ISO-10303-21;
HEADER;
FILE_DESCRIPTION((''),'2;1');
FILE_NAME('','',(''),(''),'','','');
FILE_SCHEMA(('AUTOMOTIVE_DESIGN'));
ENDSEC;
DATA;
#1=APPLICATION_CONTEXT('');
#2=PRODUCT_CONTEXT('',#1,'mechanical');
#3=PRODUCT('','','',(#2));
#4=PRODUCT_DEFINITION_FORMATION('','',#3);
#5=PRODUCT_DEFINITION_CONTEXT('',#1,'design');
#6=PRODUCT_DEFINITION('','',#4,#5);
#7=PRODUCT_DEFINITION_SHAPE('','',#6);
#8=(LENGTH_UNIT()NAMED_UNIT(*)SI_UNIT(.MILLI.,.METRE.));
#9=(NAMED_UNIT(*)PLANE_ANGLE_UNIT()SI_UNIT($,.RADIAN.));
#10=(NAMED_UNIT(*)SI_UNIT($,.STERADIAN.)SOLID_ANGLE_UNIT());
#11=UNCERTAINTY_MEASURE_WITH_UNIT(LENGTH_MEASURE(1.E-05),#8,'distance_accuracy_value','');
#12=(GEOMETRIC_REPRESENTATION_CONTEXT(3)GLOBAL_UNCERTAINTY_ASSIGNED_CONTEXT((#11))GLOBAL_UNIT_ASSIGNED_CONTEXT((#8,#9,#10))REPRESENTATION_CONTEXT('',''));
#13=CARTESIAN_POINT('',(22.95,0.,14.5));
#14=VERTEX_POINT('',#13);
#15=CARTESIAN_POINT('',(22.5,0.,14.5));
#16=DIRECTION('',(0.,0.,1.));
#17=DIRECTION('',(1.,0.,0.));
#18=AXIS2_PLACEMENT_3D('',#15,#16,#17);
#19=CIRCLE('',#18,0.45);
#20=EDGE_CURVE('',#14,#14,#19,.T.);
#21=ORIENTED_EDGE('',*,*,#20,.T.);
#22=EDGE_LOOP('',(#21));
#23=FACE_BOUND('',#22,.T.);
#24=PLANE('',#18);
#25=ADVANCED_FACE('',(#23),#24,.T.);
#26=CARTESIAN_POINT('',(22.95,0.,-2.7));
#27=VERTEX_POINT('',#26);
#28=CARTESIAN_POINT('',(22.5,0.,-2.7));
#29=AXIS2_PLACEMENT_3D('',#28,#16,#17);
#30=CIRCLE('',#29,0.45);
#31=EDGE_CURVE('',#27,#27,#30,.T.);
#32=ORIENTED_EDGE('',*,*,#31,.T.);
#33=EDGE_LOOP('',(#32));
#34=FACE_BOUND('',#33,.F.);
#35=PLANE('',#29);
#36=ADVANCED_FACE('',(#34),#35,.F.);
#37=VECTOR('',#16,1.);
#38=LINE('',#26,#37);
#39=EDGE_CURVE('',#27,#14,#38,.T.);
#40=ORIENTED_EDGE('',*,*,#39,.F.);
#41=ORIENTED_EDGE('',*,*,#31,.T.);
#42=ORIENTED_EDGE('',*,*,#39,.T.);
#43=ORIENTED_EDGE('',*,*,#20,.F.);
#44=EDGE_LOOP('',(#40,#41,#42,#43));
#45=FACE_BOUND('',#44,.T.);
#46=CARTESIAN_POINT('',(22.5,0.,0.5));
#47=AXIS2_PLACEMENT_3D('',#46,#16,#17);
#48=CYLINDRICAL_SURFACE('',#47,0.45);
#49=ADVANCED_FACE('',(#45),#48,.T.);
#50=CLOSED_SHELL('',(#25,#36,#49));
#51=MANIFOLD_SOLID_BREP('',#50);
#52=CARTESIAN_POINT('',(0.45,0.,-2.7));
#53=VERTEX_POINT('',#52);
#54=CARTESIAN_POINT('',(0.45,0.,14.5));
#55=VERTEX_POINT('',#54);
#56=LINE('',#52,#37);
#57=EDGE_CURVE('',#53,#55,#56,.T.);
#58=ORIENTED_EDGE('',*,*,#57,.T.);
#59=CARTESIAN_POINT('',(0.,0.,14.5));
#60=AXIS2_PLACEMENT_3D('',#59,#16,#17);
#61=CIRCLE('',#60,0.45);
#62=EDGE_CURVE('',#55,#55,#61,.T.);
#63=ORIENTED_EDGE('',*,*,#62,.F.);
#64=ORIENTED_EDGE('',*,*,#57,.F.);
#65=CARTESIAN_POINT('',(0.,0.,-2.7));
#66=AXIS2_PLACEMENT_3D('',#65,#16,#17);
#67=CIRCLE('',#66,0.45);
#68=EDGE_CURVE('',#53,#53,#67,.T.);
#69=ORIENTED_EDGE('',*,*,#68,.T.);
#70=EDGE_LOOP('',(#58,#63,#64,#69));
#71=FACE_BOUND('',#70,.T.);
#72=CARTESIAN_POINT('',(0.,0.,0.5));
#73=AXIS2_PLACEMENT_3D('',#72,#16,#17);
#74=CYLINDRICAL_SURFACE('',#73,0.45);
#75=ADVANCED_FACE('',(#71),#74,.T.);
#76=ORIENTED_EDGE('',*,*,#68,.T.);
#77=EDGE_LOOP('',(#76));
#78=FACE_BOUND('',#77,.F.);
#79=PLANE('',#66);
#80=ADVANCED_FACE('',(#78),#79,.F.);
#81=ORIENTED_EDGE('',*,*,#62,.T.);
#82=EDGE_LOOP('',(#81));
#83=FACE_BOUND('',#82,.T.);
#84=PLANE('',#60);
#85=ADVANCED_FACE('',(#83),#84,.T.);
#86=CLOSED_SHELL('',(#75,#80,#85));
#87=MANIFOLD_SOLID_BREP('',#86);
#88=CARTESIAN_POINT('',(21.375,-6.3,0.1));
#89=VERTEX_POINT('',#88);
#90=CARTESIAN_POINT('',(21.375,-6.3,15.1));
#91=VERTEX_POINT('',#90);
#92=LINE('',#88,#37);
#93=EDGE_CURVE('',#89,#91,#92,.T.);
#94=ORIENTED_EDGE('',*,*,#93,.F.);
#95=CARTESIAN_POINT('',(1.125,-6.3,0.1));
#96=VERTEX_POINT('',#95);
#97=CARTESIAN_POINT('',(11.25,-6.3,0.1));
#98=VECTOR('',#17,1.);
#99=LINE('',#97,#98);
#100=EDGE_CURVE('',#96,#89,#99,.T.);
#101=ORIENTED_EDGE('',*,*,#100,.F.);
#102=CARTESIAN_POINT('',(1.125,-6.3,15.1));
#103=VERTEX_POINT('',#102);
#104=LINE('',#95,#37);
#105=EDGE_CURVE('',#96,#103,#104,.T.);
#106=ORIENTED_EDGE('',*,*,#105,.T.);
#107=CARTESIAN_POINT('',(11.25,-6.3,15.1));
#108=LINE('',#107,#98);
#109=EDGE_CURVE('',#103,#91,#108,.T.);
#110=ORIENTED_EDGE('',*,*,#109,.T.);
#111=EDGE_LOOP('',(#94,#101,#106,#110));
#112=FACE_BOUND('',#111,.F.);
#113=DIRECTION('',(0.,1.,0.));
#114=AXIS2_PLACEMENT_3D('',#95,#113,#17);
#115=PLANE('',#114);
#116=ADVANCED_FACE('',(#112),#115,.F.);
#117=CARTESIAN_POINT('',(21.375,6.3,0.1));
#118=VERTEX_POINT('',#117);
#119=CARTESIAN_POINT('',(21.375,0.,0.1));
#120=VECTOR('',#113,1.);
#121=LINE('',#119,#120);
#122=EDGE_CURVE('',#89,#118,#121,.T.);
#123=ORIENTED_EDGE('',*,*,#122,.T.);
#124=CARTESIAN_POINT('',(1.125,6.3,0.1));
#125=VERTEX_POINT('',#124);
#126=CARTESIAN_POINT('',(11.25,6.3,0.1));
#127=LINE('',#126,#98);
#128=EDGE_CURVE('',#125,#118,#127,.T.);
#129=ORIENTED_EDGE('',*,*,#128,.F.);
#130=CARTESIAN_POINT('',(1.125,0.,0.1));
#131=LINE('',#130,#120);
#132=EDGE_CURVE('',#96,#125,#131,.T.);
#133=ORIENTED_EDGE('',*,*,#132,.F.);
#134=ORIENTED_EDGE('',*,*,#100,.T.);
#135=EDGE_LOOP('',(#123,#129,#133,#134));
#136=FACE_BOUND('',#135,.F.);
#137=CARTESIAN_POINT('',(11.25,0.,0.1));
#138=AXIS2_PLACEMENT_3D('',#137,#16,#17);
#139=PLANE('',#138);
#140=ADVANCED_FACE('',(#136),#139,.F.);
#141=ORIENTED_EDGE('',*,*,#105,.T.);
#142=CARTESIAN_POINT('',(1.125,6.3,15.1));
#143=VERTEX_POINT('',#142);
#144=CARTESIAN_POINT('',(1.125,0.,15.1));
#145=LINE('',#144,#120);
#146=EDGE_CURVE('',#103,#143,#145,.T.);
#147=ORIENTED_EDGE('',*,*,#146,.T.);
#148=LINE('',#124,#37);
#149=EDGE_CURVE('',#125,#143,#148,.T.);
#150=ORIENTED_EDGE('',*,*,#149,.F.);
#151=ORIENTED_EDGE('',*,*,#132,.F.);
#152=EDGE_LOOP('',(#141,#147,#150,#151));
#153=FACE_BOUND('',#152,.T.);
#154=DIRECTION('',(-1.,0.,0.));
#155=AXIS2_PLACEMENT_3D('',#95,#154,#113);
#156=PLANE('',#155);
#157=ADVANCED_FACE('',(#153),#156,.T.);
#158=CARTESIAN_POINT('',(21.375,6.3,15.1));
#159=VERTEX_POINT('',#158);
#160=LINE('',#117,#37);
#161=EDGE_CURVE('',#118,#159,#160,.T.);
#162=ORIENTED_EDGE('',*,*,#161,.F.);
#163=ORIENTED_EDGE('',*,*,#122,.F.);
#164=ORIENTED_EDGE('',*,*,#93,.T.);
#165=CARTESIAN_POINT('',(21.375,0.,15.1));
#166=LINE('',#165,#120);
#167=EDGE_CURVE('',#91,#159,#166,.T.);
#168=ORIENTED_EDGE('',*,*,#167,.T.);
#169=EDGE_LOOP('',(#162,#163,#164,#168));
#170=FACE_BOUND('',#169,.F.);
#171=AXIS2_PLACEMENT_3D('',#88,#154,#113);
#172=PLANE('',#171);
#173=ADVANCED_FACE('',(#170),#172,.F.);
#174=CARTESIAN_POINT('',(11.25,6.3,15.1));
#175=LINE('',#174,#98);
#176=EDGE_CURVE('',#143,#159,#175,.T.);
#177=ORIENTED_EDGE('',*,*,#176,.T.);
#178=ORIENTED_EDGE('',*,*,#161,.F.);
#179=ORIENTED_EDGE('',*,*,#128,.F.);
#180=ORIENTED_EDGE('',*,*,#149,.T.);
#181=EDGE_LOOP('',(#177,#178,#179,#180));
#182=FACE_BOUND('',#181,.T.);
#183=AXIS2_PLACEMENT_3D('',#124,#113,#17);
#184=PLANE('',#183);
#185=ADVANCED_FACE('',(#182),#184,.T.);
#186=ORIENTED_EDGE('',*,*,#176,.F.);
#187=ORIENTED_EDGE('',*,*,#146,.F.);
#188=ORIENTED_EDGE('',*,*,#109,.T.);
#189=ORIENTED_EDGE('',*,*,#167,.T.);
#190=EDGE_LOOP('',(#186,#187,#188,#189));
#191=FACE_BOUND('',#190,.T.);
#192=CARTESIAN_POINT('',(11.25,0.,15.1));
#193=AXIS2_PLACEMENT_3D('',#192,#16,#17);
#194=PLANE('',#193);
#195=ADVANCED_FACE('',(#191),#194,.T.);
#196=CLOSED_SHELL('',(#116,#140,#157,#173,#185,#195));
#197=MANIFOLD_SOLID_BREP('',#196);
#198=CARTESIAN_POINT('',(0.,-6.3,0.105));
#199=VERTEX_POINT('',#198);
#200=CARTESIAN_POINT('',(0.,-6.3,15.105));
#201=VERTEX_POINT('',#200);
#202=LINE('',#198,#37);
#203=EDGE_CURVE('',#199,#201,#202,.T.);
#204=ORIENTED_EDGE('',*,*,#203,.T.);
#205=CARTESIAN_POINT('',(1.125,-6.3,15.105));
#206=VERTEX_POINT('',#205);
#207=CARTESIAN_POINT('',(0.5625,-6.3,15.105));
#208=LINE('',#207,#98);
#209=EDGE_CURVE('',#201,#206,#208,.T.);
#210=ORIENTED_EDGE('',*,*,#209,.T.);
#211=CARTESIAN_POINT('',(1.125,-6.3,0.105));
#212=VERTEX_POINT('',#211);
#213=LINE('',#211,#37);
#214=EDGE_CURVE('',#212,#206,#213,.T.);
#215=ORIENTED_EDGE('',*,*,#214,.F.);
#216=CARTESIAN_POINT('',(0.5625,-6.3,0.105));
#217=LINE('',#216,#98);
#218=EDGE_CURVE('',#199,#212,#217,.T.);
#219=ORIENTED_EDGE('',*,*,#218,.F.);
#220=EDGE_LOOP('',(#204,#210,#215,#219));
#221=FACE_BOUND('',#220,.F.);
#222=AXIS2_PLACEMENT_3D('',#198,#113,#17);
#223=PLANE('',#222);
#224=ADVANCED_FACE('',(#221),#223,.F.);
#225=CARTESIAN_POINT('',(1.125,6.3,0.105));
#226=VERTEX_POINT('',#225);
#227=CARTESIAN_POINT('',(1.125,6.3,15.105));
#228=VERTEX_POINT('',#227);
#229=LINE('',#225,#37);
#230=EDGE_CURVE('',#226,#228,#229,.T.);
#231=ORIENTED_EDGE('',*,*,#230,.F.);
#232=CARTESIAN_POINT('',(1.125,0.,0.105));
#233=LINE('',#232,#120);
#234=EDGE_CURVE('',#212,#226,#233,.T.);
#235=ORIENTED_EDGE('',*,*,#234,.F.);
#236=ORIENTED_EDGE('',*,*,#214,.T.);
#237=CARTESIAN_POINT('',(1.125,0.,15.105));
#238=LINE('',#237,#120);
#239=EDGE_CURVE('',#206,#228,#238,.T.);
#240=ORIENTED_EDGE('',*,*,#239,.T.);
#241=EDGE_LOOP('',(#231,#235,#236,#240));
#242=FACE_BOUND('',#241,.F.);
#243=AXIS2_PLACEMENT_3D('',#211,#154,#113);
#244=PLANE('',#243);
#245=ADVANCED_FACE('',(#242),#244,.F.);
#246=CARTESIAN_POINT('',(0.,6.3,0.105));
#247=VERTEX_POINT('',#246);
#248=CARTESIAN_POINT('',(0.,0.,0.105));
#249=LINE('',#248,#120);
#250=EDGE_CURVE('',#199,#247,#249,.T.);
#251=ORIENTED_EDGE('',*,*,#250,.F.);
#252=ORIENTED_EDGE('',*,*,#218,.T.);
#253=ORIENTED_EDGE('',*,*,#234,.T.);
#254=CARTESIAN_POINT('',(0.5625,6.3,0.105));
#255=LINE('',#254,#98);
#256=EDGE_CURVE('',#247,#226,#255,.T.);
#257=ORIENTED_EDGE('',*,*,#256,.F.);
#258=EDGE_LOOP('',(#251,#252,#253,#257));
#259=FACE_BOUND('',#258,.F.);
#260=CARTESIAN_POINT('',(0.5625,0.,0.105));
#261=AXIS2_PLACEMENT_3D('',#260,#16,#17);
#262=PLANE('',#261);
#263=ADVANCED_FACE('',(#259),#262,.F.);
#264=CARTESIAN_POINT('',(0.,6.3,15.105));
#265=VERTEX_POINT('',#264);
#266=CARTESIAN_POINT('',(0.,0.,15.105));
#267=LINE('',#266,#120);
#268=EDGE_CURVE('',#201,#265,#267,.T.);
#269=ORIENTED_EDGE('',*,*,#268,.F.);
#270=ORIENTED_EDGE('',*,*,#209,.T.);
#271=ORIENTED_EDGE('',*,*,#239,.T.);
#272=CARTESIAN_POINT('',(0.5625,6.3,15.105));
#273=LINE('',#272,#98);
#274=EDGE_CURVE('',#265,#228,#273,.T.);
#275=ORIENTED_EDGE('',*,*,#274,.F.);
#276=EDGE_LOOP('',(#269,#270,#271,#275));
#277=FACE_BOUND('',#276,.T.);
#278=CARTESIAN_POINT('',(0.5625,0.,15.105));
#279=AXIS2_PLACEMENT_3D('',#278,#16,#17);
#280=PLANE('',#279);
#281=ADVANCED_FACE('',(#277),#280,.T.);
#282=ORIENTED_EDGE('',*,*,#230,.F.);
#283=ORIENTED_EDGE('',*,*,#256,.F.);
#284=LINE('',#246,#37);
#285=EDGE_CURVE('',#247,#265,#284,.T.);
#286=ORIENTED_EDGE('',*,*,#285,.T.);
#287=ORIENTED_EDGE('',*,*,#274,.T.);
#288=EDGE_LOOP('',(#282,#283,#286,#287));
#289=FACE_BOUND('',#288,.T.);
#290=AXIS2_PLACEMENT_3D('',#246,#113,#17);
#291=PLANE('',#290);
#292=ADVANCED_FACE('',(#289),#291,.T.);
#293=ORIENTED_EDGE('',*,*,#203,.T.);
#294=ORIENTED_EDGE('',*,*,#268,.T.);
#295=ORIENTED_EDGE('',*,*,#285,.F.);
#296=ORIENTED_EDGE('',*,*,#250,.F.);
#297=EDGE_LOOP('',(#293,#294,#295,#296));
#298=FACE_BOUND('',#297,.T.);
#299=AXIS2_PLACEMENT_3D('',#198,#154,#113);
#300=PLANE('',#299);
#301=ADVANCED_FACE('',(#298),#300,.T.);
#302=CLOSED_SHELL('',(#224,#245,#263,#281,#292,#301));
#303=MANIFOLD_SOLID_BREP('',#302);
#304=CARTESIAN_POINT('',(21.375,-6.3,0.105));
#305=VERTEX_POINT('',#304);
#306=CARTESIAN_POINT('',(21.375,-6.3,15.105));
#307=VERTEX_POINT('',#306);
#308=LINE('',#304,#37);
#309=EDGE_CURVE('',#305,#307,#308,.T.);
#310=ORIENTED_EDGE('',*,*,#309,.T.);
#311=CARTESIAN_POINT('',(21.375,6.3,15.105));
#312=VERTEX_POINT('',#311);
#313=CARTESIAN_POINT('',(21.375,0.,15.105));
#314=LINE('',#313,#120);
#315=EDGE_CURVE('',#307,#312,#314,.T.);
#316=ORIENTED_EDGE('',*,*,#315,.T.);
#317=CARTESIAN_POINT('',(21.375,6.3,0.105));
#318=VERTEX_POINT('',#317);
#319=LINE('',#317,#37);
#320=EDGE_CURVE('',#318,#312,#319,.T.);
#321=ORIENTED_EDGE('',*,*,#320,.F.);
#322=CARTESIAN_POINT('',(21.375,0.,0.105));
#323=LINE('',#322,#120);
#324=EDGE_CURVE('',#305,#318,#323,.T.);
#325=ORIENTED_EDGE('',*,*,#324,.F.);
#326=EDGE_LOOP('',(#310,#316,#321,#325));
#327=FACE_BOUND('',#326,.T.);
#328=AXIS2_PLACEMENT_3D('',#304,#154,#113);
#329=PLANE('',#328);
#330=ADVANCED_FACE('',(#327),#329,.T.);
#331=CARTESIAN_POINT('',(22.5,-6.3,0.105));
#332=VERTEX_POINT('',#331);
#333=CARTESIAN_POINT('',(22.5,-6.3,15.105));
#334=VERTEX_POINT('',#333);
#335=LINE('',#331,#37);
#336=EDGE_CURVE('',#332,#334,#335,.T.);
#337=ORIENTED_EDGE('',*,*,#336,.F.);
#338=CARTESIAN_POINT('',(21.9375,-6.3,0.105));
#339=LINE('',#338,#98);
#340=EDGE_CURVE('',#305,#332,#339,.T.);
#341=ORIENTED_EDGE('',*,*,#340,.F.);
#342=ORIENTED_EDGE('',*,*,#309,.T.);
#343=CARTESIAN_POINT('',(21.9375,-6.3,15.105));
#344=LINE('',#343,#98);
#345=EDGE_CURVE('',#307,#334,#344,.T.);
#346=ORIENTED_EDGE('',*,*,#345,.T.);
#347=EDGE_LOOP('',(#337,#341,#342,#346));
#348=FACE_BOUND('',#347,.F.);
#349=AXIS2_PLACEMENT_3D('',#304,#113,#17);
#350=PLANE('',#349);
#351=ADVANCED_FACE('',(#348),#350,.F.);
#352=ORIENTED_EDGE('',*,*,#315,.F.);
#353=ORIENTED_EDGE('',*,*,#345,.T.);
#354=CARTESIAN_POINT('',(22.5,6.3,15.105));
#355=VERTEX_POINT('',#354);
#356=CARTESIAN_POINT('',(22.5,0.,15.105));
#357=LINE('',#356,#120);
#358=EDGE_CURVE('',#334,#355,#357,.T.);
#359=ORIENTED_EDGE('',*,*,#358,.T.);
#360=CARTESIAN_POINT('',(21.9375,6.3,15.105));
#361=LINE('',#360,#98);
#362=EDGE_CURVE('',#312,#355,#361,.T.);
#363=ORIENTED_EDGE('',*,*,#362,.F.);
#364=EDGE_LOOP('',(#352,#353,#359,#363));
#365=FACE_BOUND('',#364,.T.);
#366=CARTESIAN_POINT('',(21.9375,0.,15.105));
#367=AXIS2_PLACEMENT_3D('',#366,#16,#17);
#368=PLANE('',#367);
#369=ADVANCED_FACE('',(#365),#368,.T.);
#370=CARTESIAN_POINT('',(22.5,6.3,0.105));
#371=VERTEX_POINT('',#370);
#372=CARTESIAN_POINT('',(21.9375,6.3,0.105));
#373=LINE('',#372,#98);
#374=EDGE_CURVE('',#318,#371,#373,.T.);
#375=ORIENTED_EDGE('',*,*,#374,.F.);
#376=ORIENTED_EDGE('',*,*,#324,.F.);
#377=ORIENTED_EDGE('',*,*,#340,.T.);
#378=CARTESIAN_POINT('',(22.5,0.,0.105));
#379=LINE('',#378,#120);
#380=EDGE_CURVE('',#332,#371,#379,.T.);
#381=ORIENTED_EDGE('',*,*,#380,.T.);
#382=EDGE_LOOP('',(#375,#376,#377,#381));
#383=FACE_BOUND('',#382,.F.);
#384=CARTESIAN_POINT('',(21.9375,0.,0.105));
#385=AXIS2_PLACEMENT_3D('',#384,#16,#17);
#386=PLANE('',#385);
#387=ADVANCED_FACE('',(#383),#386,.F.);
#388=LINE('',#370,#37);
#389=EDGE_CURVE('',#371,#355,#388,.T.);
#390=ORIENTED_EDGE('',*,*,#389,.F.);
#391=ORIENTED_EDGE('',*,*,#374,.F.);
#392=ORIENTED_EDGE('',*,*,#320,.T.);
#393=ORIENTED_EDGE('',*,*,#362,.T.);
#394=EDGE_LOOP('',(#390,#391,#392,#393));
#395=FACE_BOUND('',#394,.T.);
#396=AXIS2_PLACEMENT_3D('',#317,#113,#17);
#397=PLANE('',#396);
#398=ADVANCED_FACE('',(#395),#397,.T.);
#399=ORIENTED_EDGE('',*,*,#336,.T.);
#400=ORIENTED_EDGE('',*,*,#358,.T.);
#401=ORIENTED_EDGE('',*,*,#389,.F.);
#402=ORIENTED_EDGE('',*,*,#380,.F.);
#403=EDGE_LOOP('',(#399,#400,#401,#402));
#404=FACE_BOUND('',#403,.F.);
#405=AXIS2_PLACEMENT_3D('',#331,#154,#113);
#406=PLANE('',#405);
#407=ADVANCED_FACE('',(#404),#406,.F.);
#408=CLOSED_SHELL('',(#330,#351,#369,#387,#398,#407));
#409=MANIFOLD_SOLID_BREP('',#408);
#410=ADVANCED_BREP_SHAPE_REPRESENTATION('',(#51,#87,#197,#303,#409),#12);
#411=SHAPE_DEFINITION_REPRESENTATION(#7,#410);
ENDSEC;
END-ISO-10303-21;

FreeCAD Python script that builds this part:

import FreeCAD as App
import Part
import Sketcher

doc = App.newDocument("Part")
body = doc.addObject("PartDesign::Body", "Body")

sketch1 = body.newObject("Sketcher::SketchObject", "Sketch")
sketch1.AttachmentSupport = (doc.getObject("XY_Plane"), [""])
sketch1.MapMode = "FlatFace"
sketch1.AttachmentOffset = App.Placement(App.Vector(0, 0, 0.1), App.Rotation())
sketch1.addGeometry(Part.LineSegment(App.Vector(1, 6, 0), App.Vector(1, -6, 0)), False)
sketch1.addGeometry(Part.LineSegment(App.Vector(1, -6, 0), App.Vector(21, -6, 0)), False)
sketch1.addGeometry(Part.LineSegment(App.Vector(21, -6, 0), App.Vector(21, 6, 0)), False)
sketch1.addGeometry(Part.LineSegment(App.Vector(21, 6, 0), App.Vector(1, 6, 0)), False)
sketch1.addConstraint(Sketcher.Constraint("Coincident", 0, 2, 1, 1))
sketch1.addConstraint(Sketcher.Constraint("Coincident", 1, 2, 2, 1))
sketch1.addConstraint(Sketcher.Constraint("Coincident", 2, 2, 3, 1))
sketch1.addConstraint(Sketcher.Constraint("Coincident", 3, 2, 0, 1))
sketch1.addConstraint(Sketcher.Constraint("Vertical", 0))
sketch1.addConstraint(Sketcher.Constraint("Horizontal", 1))
sketch1.addConstraint(Sketcher.Constraint("Vertical", 2))
sketch1.addConstraint(Sketcher.Constraint("Horizontal", 3))
sketch1.addConstraint(Sketcher.Constraint("DistanceY", 0, 2, 0, 1, 12.6))
sketch1.addConstraint(Sketcher.Constraint("DistanceX", 1, 1, 1, 2, 20.25))
sketch1.addConstraint(Sketcher.Constraint("DistanceY", 0, 2, -1, 1, 6.3))
sketch1.addConstraint(Sketcher.Constraint("DistanceX", -1, 1, 0, 2, 1.125))
pad1 = body.newObject("PartDesign::Pad", "Pad")
pad1.Profile = sketch1
pad1.Length = 15
body2 = doc.addObject("PartDesign::Body", "Body001")
body2.AllowCompound = True

sketch2 = body2.newObject("Sketcher::SketchObject", "Sketch001")
sketch2.AttachmentSupport = (doc.getObject("XY_Plane001"), [""])
sketch2.MapMode = "FlatFace"
sketch2.AttachmentOffset = App.Placement(App.Vector(0, 0, 0.5), App.Rotation())
sketch2.addGeometry(Part.Circle(App.Vector(0, 0, 0), App.Vector(0, 0, 1), 0.45), False)
sketch2.addGeometry(Part.Circle(App.Vector(22.5, 0, 0), App.Vector(0, 0, 1), 0.45), False)
sketch2.addConstraint(Sketcher.Constraint("Coincident", 0, 3, -1, 1))
sketch2.addConstraint(Sketcher.Constraint("Equal", 0, 1))
sketch2.addConstraint(Sketcher.Constraint("PointOnObject", 1, 3, -1))
sketch2.addConstraint(Sketcher.Constraint("Diameter", 0, 0.9))
sketch2.addConstraint(Sketcher.Constraint("DistanceX", -1, 1, 1, 3, 22.5))
pad2 = body2.newObject("PartDesign::Pad", "Pad001")
pad2.Profile = sketch2
pad2.Type = "TwoLengths"
pad2.Length = 14
pad2.Length2 = 3.2
body3 = doc.addObject("PartDesign::Body", "Body002")
body3.AllowCompound = True

sketch3 = body3.newObject("Sketcher::SketchObject", "Sketch002")
sketch3.AttachmentSupport = (doc.getObject("XY_Plane002"), [""])
sketch3.MapMode = "FlatFace"
sketch3.AttachmentOffset = App.Placement(App.Vector(0, 0, 0.105), App.Rotation())
sketch3.addGeometry(Part.LineSegment(App.Vector(0, 6.3, 0), App.Vector(0, -6.3, 0)), False)
sketch3.addGeometry(Part.LineSegment(App.Vector(0, -6.3, 0), App.Vector(1.1, -6.3, 0)), False)
sketch3.addGeometry(Part.LineSegment(App.Vector(1.1, -6.3, 0), App.Vector(1.1, 6.3, 0)), False)
sketch3.addGeometry(Part.LineSegment(App.Vector(1.1, 6.3, 0), App.Vector(0, 6.3, 0)), False)
sketch3.addGeometry(Part.LineSegment(App.Vector(21.4, 6.3, 0), App.Vector(21.4, -6.3, 0)), False)
sketch3.addGeometry(Part.LineSegment(App.Vector(21.4, -6.3, 0), App.Vector(22.5, -6.3, 0)), False)
sketch3.addGeometry(Part.LineSegment(App.Vector(22.5, -6.3, 0), App.Vector(22.5, 6.3, 0)), False)
sketch3.addGeometry(Part.LineSegment(App.Vector(22.5, 6.3, 0), App.Vector(21.4, 6.3, 0)), False)
sketch3.addConstraint(Sketcher.Constraint("Coincident", 0, 2, 1, 1))
sketch3.addConstraint(Sketcher.Constraint("Coincident", 1, 2, 2, 1))
sketch3.addConstraint(Sketcher.Constraint("Coincident", 2, 2, 3, 1))
sketch3.addConstraint(Sketcher.Constraint("Coincident", 3, 2, 0, 1))
sketch3.addConstraint(Sketcher.Constraint("Coincident", 4, 2, 5, 1))
sketch3.addConstraint(Sketcher.Constraint("Coincident", 5, 2, 6, 1))
sketch3.addConstraint(Sketcher.Constraint("Coincident", 6, 2, 7, 1))
sketch3.addConstraint(Sketcher.Constraint("Coincident", 7, 2, 4, 1))
sketch3.addConstraint(Sketcher.Constraint("Vertical", 0))
sketch3.addConstraint(Sketcher.Constraint("Horizontal", 1))
sketch3.addConstraint(Sketcher.Constraint("Vertical", 2))
sketch3.addConstraint(Sketcher.Constraint("Horizontal", 3))
sketch3.addConstraint(Sketcher.Constraint("Vertical", 4))
sketch3.addConstraint(Sketcher.Constraint("Horizontal", 5))
sketch3.addConstraint(Sketcher.Constraint("Vertical", 6))
sketch3.addConstraint(Sketcher.Constraint("Horizontal", 7))
sketch3.addConstraint(Sketcher.Constraint("Symmetric", 0, 2, 3, 2, -1, 1))
sketch3.addConstraint(Sketcher.Constraint("Horizontal", 1, 2, 4, 2))
sketch3.addConstraint(Sketcher.Constraint("Horizontal", 3, 2, 6, 2))
sketch3.addConstraint(Sketcher.Constraint("Equal", 3, 5))
sketch3.addConstraint(Sketcher.Constraint("DistanceY", 0, 2, 0, 1, 12.6))
sketch3.addConstraint(Sketcher.Constraint("DistanceX", -1, 1, 5, 2, 22.5))
sketch3.addConstraint(Sketcher.Constraint("DistanceX", 1, 1, 1, 2, 1.125))
pad3 = body3.newObject("PartDesign::Pad", "Pad002")
pad3.Profile = sketch3
pad3.Length = 15

doc.recompute()
